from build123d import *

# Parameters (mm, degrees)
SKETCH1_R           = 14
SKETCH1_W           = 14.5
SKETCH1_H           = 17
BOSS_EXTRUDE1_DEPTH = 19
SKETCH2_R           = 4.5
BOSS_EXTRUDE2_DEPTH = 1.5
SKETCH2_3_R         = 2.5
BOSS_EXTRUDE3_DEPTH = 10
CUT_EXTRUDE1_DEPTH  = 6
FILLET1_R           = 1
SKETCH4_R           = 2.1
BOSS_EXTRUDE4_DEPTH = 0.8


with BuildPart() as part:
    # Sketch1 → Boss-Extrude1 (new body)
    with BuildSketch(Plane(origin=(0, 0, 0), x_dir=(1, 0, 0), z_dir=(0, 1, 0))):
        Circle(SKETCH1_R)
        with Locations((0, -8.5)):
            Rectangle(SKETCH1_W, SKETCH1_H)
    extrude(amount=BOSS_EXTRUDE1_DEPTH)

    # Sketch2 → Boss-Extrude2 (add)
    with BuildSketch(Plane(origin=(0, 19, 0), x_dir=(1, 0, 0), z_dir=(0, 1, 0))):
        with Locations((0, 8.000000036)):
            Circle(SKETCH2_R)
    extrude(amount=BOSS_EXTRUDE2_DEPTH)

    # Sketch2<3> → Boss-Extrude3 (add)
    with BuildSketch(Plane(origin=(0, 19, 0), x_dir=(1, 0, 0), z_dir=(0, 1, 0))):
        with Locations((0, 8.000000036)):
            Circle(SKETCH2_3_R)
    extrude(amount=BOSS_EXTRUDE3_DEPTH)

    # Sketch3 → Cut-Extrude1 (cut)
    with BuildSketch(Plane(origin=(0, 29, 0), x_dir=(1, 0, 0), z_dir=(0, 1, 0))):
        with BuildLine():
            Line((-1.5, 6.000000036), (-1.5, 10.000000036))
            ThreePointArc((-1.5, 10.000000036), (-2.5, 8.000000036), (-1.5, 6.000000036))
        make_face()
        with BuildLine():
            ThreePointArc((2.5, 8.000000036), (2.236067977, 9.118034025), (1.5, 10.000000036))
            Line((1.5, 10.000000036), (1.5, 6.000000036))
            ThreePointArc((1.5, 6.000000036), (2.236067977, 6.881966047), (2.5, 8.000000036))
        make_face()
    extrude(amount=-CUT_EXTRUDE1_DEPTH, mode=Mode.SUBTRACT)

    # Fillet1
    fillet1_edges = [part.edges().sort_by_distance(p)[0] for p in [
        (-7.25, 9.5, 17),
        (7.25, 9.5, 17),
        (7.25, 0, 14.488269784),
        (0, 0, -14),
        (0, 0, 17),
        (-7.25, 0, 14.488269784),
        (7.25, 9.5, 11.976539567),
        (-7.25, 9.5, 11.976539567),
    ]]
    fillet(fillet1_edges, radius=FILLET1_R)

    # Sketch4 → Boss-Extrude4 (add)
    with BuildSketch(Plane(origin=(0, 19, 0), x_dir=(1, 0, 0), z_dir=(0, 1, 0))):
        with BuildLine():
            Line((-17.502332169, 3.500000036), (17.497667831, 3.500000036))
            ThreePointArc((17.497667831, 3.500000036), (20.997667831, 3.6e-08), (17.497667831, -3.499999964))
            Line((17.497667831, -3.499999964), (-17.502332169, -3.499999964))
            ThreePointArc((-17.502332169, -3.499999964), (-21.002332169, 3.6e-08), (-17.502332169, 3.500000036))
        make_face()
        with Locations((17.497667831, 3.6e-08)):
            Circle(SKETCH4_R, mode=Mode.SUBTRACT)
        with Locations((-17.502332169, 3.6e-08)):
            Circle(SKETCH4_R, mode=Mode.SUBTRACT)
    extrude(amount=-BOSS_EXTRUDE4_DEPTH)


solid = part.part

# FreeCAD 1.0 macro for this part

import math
import FreeCAD as App
import Part
import Sketcher

V = App.Vector


def edges_at(feature, points):
    """Names of the edges that pass closest to the given points."""
    edges = feature.Shape.Edges
    near = lambda p: min(range(len(edges)), key=lambda i: edges[i].distToShape(Part.Vertex(*p))[0])
    return sorted({f"Edge{near(p) + 1}" for p in points})

doc = App.newDocument("Part")
body = doc.addObject("PartDesign::Body", "Body")

sketch1 = body.newObject("Sketcher::SketchObject", "Sketch")
sketch1.AttachmentSupport = (doc.getObject("XZ_Plane"), [""])
sketch1.MapMode = "FlatFace"
sketch1.addGeometry([
    Part.ArcOfCircle(Part.Circle(V(0, 0, 0), V(0, 0, 1), 14), math.radians(121.188622), math.radians(418.811378)),
    Part.LineSegment(V(-7.25, 11.97654, 0), V(-7.25, 17, 0)),
    Part.LineSegment(V(-7.25, 17, 0), V(7.25, 17, 0)),
    Part.LineSegment(V(7.25, 17, 0), V(7.25, 11.97654, 0)),
], False)
sketch1.addConstraint([
    Sketcher.Constraint("Coincident", 0, 1, 1, 1),
    Sketcher.Constraint("Coincident", 1, 2, 2, 1),
    Sketcher.Constraint("Coincident", 2, 2, 3, 1),
    Sketcher.Constraint("Coincident", 3, 2, 0, 2),
    Sketcher.Constraint("Vertical", 1),
    Sketcher.Constraint("Horizontal", 2),
    Sketcher.Constraint("Vertical", 3),
    Sketcher.Constraint("Coincident", 0, 3, -1, 1),
    Sketcher.Constraint("Horizontal", 0, 1, 3, 2),
    Sketcher.Constraint("Radius", 0, 14.0),
    Sketcher.Constraint("DistanceX", 2, 1, 2, 2, 14.5),
    Sketcher.Constraint("DistanceY", -1, 1, 1, 2, 17.0),
])
pad1 = body.newObject("PartDesign::Pad", "Pad")
pad1.Profile = sketch1
pad1.Length = 19
pad1.Reversed = True

sketch2 = body.newObject("Sketcher::SketchObject", "Sketch001")
sketch2.AttachmentSupport = (doc.getObject("XZ_Plane"), [""])
sketch2.MapMode = "FlatFace"
sketch2.AttachmentOffset = App.Placement(V(0, 0, -19), App.Rotation())
sketch2.addGeometry(Part.Circle(V(0, -8, 0), V(0, 0, 1), 4.5), False)
sketch2.addConstraint([
    Sketcher.Constraint("PointOnObject", 0, 3, -2),
    Sketcher.Constraint("Diameter", 0, 9.0),
    Sketcher.Constraint("DistanceY", 0, 3, -1, 1, 8.0),
])
pad2 = body.newObject("PartDesign::Pad", "Pad001")
pad2.Profile = sketch2
pad2.Length = 1.5
pad2.Reversed = True

sketch3 = body.newObject("Sketcher::SketchObject", "Sketch002")
sketch3.AttachmentSupport = (doc.getObject("XZ_Plane"), [""])
sketch3.MapMode = "FlatFace"
sketch3.AttachmentOffset = App.Placement(V(0, 0, -19), App.Rotation())
sketch3.addGeometry(Part.Circle(V(0, -8, 0), V(0, 0, 1), 2.5), False)
sketch3.addConstraint([
    Sketcher.Constraint("PointOnObject", 0, 3, -2),
    Sketcher.Constraint("Diameter", 0, 5.0),
    Sketcher.Constraint("DistanceY", 0, 3, -1, 1, 8.0),
])
pad3 = body.newObject("PartDesign::Pad", "Pad002")
pad3.Profile = sketch3
pad3.Length = 10
pad3.Reversed = True

sketch4 = body.newObject("Sketcher::SketchObject", "Sketch003")
sketch4.AttachmentSupport = (doc.getObject("XZ_Plane"), [""])
sketch4.MapMode = "FlatFace"
sketch4.AttachmentOffset = App.Placement(V(0, 0, -29), App.Rotation())
sketch4.addGeometry([
    Part.LineSegment(V(-1.5, -6, 0), V(-1.5, -10, 0)),
    Part.ArcOfCircle(Part.Circle(V(0, -8, 0), V(0, 0, 1), 2.5), math.radians(126.869898), math.radians(233.130102)),
    Part.ArcOfCircle(Part.Circle(V(0, -8, 0), V(0, 0, 1), 2.5), math.radians(-53.130102), math.radians(0)),
    Part.LineSegment(V(1.5, -10, 0), V(1.5, -6, 0)),
    Part.ArcOfCircle(Part.Circle(V(0, -8, 0), V(0, 0, 1), 2.5), math.radians(0), math.radians(53.130102)),
], False)
sketch4.addConstraint([
    Sketcher.Constraint("Coincident", 0, 1, 1, 1),
    Sketcher.Constraint("Coincident", 1, 2, 0, 2),
    Sketcher.Constraint("Coincident", 2, 1, 3, 1),
    Sketcher.Constraint("Coincident", 3, 2, 4, 2),
    Sketcher.Constraint("Tangent", 4, 1, 2, 2),
    Sketcher.Constraint("Vertical", 0),
    Sketcher.Constraint("Vertical", 3),
    Sketcher.Constraint("Coincident", 2, 3, 1, 3),
    Sketcher.Constraint("Equal", 1, 2),
    Sketcher.Constraint("Equal", 2, 4),
    Sketcher.Constraint("Symmetric", 1, 2, 2, 1, -2),
    Sketcher.Constraint("Horizontal", 2, 3, 4, 1),
    Sketcher.Constraint("Radius", 1, 2.5),
    Sketcher.Constraint("DistanceY", 0, 2, 0, 1, 4.0),
    Sketcher.Constraint("DistanceY", 1, 3, -1, 1, 8.0),
])
pocket1 = body.newObject("PartDesign::Pocket", "Pocket")
pocket1.Profile = sketch4
pocket1.Length = 6
pocket1.Reversed = True
doc.recompute()

fillet = body.newObject("PartDesign::Fillet", "Fillet")
fillet.Base = (pocket1, edges_at(pocket1, [
    (-7.25, 9.5, 17),
    (7.25, 9.5, 17),
    (7.25, 0, 14.488),
    (0, 0, -14),
    (0, 0, 17),
    (-7.25, 0, 14.488),
    (7.25, 9.5, 11.977),
    (-7.25, 9.5, 11.977),
]))
fillet.Radius = 1

sketch5 = body.newObject("Sketcher::SketchObject", "Sketch004")
sketch5.AttachmentSupport = (doc.getObject("XZ_Plane"), [""])
sketch5.MapMode = "FlatFace"
sketch5.AttachmentOffset = App.Placement(V(0, 0, -19), App.Rotation())
sketch5.addGeometry([
    Part.LineSegment(V(17.497668, -3.5, 0), V(-17.502332, -3.5, 0)),
    Part.ArcOfCircle(Part.Circle(V(-17.502332, 0, 0), V(0, 0, 1), 3.5), math.radians(90), math.radians(270)),
    Part.LineSegment(V(-17.502332, 3.5, 0), V(17.497668, 3.5, 0)),
    Part.ArcOfCircle(Part.Circle(V(17.497668, 0, 0), V(0, 0, 1), 3.5), math.radians(-90), math.radians(90)),
    Part.Circle(V(17.497668, 0, 0), V(0, 0, 1), 2.1),
    Part.Circle(V(-17.502332, 0, 0), V(0, 0, 1), 2.1),
], False)
sketch5.addConstraint([
    Sketcher.Constraint("Tangent", 0, 2, 1, 2),
    Sketcher.Constraint("Tangent", 1, 1, 2, 1),
    Sketcher.Constraint("Tangent", 2, 2, 3, 2),
    Sketcher.Constraint("Tangent", 3, 1, 0, 1),
    Sketcher.Constraint("Horizontal", 0),
    Sketcher.Constraint("Horizontal", 2),
    Sketcher.Constraint("Coincident", 4, 3, 3, 3),
    Sketcher.Constraint("Coincident", 5, 3, 1, 3),
    Sketcher.Constraint("Equal", 4, 5),
    Sketcher.Constraint("PointOnObject", 1, 3, -1),
    Sketcher.Constraint("Diameter", 4, 4.2),
    Sketcher.Constraint("Radius", 1, 3.5),
    Sketcher.Constraint("DistanceX", 0, 2, 0, 1, 35.0),
    Sketcher.Constraint("DistanceX", 1, 3, -1, 1, 17.502332),
])
pad4 = body.newObject("PartDesign::Pad", "Pad003")
pad4.Profile = sketch5
pad4.Length = 0.8

doc.recompute()
